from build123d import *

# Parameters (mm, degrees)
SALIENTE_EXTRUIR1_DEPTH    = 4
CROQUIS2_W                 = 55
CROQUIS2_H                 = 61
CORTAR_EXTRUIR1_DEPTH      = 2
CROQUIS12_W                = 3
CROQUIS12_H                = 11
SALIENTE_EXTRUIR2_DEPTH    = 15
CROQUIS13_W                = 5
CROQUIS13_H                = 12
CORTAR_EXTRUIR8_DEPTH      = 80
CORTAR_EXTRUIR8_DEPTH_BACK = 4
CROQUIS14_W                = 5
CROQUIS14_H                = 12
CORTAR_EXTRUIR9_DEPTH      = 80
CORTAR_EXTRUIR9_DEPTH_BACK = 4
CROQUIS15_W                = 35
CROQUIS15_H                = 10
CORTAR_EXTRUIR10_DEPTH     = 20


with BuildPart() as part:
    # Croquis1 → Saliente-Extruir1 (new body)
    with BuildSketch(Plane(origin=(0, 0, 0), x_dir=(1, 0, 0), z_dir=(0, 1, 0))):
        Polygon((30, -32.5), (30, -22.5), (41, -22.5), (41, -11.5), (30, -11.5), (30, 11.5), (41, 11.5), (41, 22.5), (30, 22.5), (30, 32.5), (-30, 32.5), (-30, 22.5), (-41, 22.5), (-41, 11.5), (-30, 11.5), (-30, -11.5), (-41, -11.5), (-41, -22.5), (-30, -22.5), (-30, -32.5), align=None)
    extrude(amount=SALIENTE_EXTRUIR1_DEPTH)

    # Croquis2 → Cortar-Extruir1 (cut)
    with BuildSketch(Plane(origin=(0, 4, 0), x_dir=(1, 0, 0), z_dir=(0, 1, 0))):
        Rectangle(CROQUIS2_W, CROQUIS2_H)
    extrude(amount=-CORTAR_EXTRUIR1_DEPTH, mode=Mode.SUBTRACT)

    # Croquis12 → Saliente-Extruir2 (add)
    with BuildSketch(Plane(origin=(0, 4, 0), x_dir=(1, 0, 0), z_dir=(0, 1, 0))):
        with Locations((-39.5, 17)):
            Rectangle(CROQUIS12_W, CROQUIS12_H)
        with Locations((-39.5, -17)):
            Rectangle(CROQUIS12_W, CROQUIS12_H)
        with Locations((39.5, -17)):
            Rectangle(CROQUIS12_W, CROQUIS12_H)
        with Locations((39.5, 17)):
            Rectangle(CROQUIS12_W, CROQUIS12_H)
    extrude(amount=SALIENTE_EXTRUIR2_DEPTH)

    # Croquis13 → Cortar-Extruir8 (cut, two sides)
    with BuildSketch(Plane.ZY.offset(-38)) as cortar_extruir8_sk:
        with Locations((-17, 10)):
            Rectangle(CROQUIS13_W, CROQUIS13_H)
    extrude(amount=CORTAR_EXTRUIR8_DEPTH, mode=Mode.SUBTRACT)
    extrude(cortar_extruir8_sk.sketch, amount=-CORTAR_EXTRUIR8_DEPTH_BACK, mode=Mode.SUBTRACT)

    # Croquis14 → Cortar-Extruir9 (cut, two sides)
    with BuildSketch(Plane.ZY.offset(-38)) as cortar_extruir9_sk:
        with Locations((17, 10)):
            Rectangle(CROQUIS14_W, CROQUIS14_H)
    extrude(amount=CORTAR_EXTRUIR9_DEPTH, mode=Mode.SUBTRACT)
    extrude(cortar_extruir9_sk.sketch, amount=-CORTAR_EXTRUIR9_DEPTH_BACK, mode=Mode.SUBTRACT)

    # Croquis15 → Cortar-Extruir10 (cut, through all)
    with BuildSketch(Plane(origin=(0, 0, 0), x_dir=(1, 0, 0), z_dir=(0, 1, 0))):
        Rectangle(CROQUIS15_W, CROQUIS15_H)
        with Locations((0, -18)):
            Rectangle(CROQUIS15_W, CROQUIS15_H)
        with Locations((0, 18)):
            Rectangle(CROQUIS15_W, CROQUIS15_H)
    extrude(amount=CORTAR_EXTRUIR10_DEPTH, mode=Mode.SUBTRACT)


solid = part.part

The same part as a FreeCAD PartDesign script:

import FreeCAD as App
import Part
import Sketcher
from FreeCAD import Vector
Q = App.Units.Quantity


def add_polygon(sketch, points):
    """Adds a closed chain of lines whose ends are joined by coincident constraints."""
    first, n = sketch.GeometryCount, len(points)
    for a, b in zip(points, points[1:] + points[:1]):
        sketch.addGeometry(Part.LineSegment(App.Vector(*a, 0), App.Vector(*b, 0)), False)
    for i in range(n):
        sketch.addConstraint(Sketcher.Constraint("Coincident", first + i, 2, first + (i + 1) % n, 1))

doc = App.newDocument("Part")
body = doc.addObject("PartDesign::Body", "Body")

sketch1 = doc.addObject("Sketcher::SketchObject", "Sketch")
body.addObject(sketch1)
sketch1.AttachmentSupport = (doc.XZ_Plane, [""])
sketch1.MapMode = "FlatFace"
add_polygon(sketch1, [(30, 32), (30, 22), (41, 22), (41, 12), (30, 12), (30, -12), (41, -12), (41, -22), (30, -22), (30, -32), (-30, -32), (-30, -22), (-41, -22), (-41, -12), (-30, -12), (-30, 12), (-41, 12), (-41, 22), (-30, 22), (-30, 32)])
sketch1.addConstraint(Sketcher.Constraint("Vertical", 0))
sketch1.addConstraint(Sketcher.Constraint("Horizontal", 1))
sketch1.addConstraint(Sketcher.Constraint("Vertical", 2))
sketch1.addConstraint(Sketcher.Constraint("Horizontal", 3))
sketch1.addConstraint(Sketcher.Constraint("Vertical", 4))
sketch1.addConstraint(Sketcher.Constraint("Horizontal", 5))
sketch1.addConstraint(Sketcher.Constraint("Vertical", 6))
sketch1.addConstraint(Sketcher.Constraint("Horizontal", 7))
sketch1.addConstraint(Sketcher.Constraint("Vertical", 8))
sketch1.addConstraint(Sketcher.Constraint("Horizontal", 9))
sketch1.addConstraint(Sketcher.Constraint("Vertical", 10))
sketch1.addConstraint(Sketcher.Constraint("Horizontal", 11))
sketch1.addConstraint(Sketcher.Constraint("Vertical", 12))
sketch1.addConstraint(Sketcher.Constraint("Horizontal", 13))
sketch1.addConstraint(Sketcher.Constraint("Vertical", 14))
sketch1.addConstraint(Sketcher.Constraint("Horizontal", 15))
sketch1.addConstraint(Sketcher.Constraint("Vertical", 16))
sketch1.addConstraint(Sketcher.Constraint("Horizontal", 17))
sketch1.addConstraint(Sketcher.Constraint("Vertical", 18))
sketch1.addConstraint(Sketcher.Constraint("Horizontal", 19))
sketch1.addConstraint(Sketcher.Constraint("Symmetric", 0, 2, 10, 2, -1, 1))
sketch1.addConstraint(Sketcher.Constraint("Symmetric", 2, 2, 12, 2, -1, 1))
sketch1.addConstraint(Sketcher.Constraint("Symmetric", 4, 2, 14, 2, -1, 1))
sketch1.addConstraint(Sketcher.Constraint("Symmetric", 6, 2, 16, 2, -1, 1))
sketch1.addConstraint(Sketcher.Constraint("Symmetric", 8, 2, 18, 2, -1, 1))
sketch1.addConstraint(Sketcher.Constraint("Symmetric", 7, 2, 10, 2, -2))
sketch1.addConstraint(Sketcher.Constraint("Symmetric", 5, 2, 12, 2, -2))
sketch1.addConstraint(Sketcher.Constraint("Vertical", 0, 2, 3, 2))
sketch1.addConstraint(Sketcher.Constraint("Equal", 17, 2))
sketch1.addConstraint(Sketcher.Constraint("DistanceX", 1, 1, 1, 2, Q("11 mm")))
sketch1.addConstraint(Sketcher.Constraint("DistanceX", 9, 2, 9, 1, Q("60 mm")))
sketch1.addConstraint(Sketcher.Constraint("DistanceY", 0, 2, 0, 1, Q("10 mm")))
sketch1.addConstraint(Sketcher.Constraint("DistanceY", 4, 2, 4, 1, Q("23 mm")))
pad1 = doc.addObject("PartDesign::Pad", "Pad")
body.addObject(pad1)
pad1.Profile = sketch1
pad1.Length = 4
pad1.Reversed = True

sketch2 = doc.addObject("Sketcher::SketchObject", "Sketch001")
body.addObject(sketch2)
sketch2.AttachmentSupport = (doc.XZ_Plane, [""])
sketch2.MapMode = "FlatFace"
sketch2.AttachmentOffset = App.Placement(Vector(0, 0, -4), App.Rotation())
add_polygon(sketch2, [(-28, -30), (-28, 30), (28, 30), (28, -30)])
sketch2.addConstraint(Sketcher.Constraint("Vertical", 0))
sketch2.addConstraint(Sketcher.Constraint("Horizontal", 1))
sketch2.addConstraint(Sketcher.Constraint("Vertical", 2))
sketch2.addConstraint(Sketcher.Constraint("Horizontal", 3))
sketch2.addConstraint(Sketcher.Constraint("Symmetric", 0, 2, 2, 2, -1, 1))
sketch2.addConstraint(Sketcher.Constraint("DistanceX", 1, 1, 1, 2, Q("55 mm")))
sketch2.addConstraint(Sketcher.Constraint("DistanceY", 0, 1, 0, 2, Q("61 mm")))
pocket1 = doc.addObject("PartDesign::Pocket", "Pocket")
body.addObject(pocket1)
pocket1.Profile = sketch2
pocket1.Length = 2
pocket1.Reversed = True

sketch3 = doc.addObject("Sketcher::SketchObject", "Sketch002")
body.addObject(sketch3)
sketch3.AttachmentSupport = (doc.XZ_Plane, [""])
sketch3.MapMode = "FlatFace"
sketch3.AttachmentOffset = App.Placement(Vector(0, 0, -4), App.Rotation())
add_polygon(sketch3, [(-41, -22.5), (-41, -11.5), (-38, -11.5), (-38, -22.5)])
add_polygon(sketch3, [(-41, 11.5), (-41, 22.5), (-38, 22.5), (-38, 11.5)])
add_polygon(sketch3, [(38, 11.5), (38, 22.5), (41, 22.5), (41, 11.5)])
add_polygon(sketch3, [(38, -22.5), (38, -11.5), (41, -11.5), (41, -22.5)])
sketch3.addConstraint(Sketcher.Constraint("Vertical", 0))
sketch3.addConstraint(Sketcher.Constraint("Horizontal", 1))
sketch3.addConstraint(Sketcher.Constraint("Vertical", 2))
sketch3.addConstraint(Sketcher.Constraint("Horizontal", 3))
sketch3.addConstraint(Sketcher.Constraint("Vertical", 4))
sketch3.addConstraint(Sketcher.Constraint("Horizontal", 5))
sketch3.addConstraint(Sketcher.Constraint("Vertical", 6))
sketch3.addConstraint(Sketcher.Constraint("Horizontal", 7))
sketch3.addConstraint(Sketcher.Constraint("Vertical", 8))
sketch3.addConstraint(Sketcher.Constraint("Horizontal", 9))
sketch3.addConstraint(Sketcher.Constraint("Vertical", 10))
sketch3.addConstraint(Sketcher.Constraint("Horizontal", 11))
sketch3.addConstraint(Sketcher.Constraint("Vertical", 12))
sketch3.addConstraint(Sketcher.Constraint("Horizontal", 13))
sketch3.addConstraint(Sketcher.Constraint("Vertical", 14))
sketch3.addConstraint(Sketcher.Constraint("Horizontal", 15))
sketch3.addConstraint(Sketcher.Constraint("Symmetric", 2, 2, 8, 2, -1, 1))
sketch3.addConstraint(Sketcher.Constraint("Symmetric", 0, 2, 10, 2, -1, 1))
sketch3.addConstraint(Sketcher.Constraint("Symmetric", 6, 2, 12, 2, -1, 1))
sketch3.addConstraint(Sketcher.Constraint("Symmetric", 4, 2, 14, 2, -1, 1))
sketch3.addConstraint(Sketcher.Constraint("Symmetric", 5, 2, 8, 2, -2))
sketch3.addConstraint(Sketcher.Constraint("Symmetric", 7, 2, 10, 2, -2))
sketch3.addConstraint(Sketcher.Constraint("DistanceX", 1, 1, 1, 2, Q("3 mm")))
sketch3.addConstraint(Sketcher.Constraint("DistanceY", 0, 1, 0, 2, Q("11 mm")))
sketch3.addConstraint(Sketcher.Constraint("DistanceX", 0, 2, -1, 1, Q("41 mm")))
sketch3.addConstraint(Sketcher.Constraint("DistanceY", 0, 2, 4, 2, Q("34 mm")))
pad2 = doc.addObject("PartDesign::Pad", "Pad001")
body.addObject(pad2)
pad2.Profile = sketch3
pad2.Length = 15
pad2.Reversed = True

sketch4 = doc.addObject("Sketcher::SketchObject", "Sketch003")
body.addObject(sketch4)
sketch4.AttachmentSupport = (doc.YZ_Plane, [""])
sketch4.MapMode = "FlatFace"
sketch4.AttachmentOffset = App.Placement(Vector(0, 0, 38), App.Rotation())
add_polygon(sketch4, [(16, -20), (4, -20), (4, -14), (16, -14)])
sketch4.addConstraint(Sketcher.Constraint("Horizontal", 0))
sketch4.addConstraint(Sketcher.Constraint("Vertical", 1))
sketch4.addConstraint(Sketcher.Constraint("Horizontal", 2))
sketch4.addConstraint(Sketcher.Constraint("Vertical", 3))
sketch4.addConstraint(Sketcher.Constraint("DistanceX", 0, 2, 0, 1, Q("12 mm")))
sketch4.addConstraint(Sketcher.Constraint("DistanceY", 1, 1, 1, 2, Q("5 mm")))
sketch4.addConstraint(Sketcher.Constraint("DistanceX", -1, 1, 0, 2, Q("4 mm")))
sketch4.addConstraint(Sketcher.Constraint("DistanceY", 0, 2, -1, 1, Q("19.5 mm")))
pocket2 = doc.addObject("PartDesign::Pocket", "Pocket001")
body.addObject(pocket2)
pocket2.Profile = sketch4
pocket2.Type = "ThroughAll"
pocket2.Midplane = True

sketch5 = doc.addObject("Sketcher::SketchObject", "Sketch004")
body.addObject(sketch5)
sketch5.AttachmentSupport = (doc.YZ_Plane, [""])
sketch5.MapMode = "FlatFace"
sketch5.AttachmentOffset = App.Placement(Vector(0, 0, 38), App.Rotation())
add_polygon(sketch5, [(16, 14), (4, 14), (4, 20), (16, 20)])
sketch5.addConstraint(Sketcher.Constraint("Horizontal", 0))
sketch5.addConstraint(Sketcher.Constraint("Vertical", 1))
sketch5.addConstraint(Sketcher.Constraint("Horizontal", 2))
sketch5.addConstraint(Sketcher.Constraint("Vertical", 3))
sketch5.addConstraint(Sketcher.Constraint("DistanceX", 0, 2, 0, 1, Q("12 mm")))
sketch5.addConstraint(Sketcher.Constraint("DistanceY", 1, 1, 1, 2, Q("5 mm")))
sketch5.addConstraint(Sketcher.Constraint("DistanceX", -1, 1, 0, 2, Q("4 mm")))
sketch5.addConstraint(Sketcher.Constraint("DistanceY", -1, 1, 0, 2, Q("14.5 mm")))
pocket3 = doc.addObject("PartDesign::Pocket", "Pocket002")
body.addObject(pocket3)
pocket3.Profile = sketch5
pocket3.Type = "ThroughAll"
pocket3.Midplane = True

sketch6 = doc.addObject("Sketcher::SketchObject", "Sketch005")
body.addObject(sketch6)
sketch6.AttachmentSupport = (doc.XZ_Plane, [""])
sketch6.MapMode = "FlatFace"
add_polygon(sketch6, [(-18, -5), (-18, 5), (18, 5), (18, -5)])
add_polygon(sketch6, [(-18, 13), (-18, 23), (18, 23), (18, 13)])
add_polygon(sketch6, [(-18, -23), (-18, -13), (18, -13), (18, -23)])
sketch6.addConstraint(Sketcher.Constraint("Vertical", 0))
sketch6.addConstraint(Sketcher.Constraint("Horizontal", 1))
sketch6.addConstraint(Sketcher.Constraint("Vertical", 2))
sketch6.addConstraint(Sketcher.Constraint("Horizontal", 3))
sketch6.addConstraint(Sketcher.Constraint("Vertical", 4))
sketch6.addConstraint(Sketcher.Constraint("Horizontal", 5))
sketch6.addConstraint(Sketcher.Constraint("Vertical", 6))
sketch6.addConstraint(Sketcher.Constraint("Horizontal", 7))
sketch6.addConstraint(Sketcher.Constraint("Vertical", 8))
sketch6.addConstraint(Sketcher.Constraint("Horizontal", 9))
sketch6.addConstraint(Sketcher.Constraint("Vertical", 10))
sketch6.addConstraint(Sketcher.Constraint("Horizontal", 11))
sketch6.addConstraint(Sketcher.Constraint("Symmetric", 0, 2, 2, 2, -1, 1))
sketch6.addConstraint(Sketcher.Constraint("Symmetric", 6, 2, 8, 2, -1, 1))
sketch6.addConstraint(Sketcher.Constraint("Symmetric", 4, 2, 10, 2, -1, 1))
sketch6.addConstraint(Sketcher.Constraint("Vertical", 3, 2, 4, 2))
sketch6.addConstraint(Sketcher.Constraint("Vertical", 2, 2, 5, 2))
sketch6.addConstraint(Sketcher.Constraint("Equal", 2, 4))
sketch6.addConstraint(Sketcher.Constraint("DistanceX", 1, 1, 1, 2, Q("35 mm")))
sketch6.addConstraint(Sketcher.Constraint("DistanceY", 0, 1, 0, 2, Q("10 mm")))
sketch6.addConstraint(Sketcher.Constraint("DistanceY", -1, 1, 4, 2, Q("23 mm")))
pocket4 = doc.addObject("PartDesign::Pocket", "Pocket003")
body.addObject(pocket4)
pocket4.Profile = sketch6
pocket4.Type = "ThroughAll"

doc.recompute()
